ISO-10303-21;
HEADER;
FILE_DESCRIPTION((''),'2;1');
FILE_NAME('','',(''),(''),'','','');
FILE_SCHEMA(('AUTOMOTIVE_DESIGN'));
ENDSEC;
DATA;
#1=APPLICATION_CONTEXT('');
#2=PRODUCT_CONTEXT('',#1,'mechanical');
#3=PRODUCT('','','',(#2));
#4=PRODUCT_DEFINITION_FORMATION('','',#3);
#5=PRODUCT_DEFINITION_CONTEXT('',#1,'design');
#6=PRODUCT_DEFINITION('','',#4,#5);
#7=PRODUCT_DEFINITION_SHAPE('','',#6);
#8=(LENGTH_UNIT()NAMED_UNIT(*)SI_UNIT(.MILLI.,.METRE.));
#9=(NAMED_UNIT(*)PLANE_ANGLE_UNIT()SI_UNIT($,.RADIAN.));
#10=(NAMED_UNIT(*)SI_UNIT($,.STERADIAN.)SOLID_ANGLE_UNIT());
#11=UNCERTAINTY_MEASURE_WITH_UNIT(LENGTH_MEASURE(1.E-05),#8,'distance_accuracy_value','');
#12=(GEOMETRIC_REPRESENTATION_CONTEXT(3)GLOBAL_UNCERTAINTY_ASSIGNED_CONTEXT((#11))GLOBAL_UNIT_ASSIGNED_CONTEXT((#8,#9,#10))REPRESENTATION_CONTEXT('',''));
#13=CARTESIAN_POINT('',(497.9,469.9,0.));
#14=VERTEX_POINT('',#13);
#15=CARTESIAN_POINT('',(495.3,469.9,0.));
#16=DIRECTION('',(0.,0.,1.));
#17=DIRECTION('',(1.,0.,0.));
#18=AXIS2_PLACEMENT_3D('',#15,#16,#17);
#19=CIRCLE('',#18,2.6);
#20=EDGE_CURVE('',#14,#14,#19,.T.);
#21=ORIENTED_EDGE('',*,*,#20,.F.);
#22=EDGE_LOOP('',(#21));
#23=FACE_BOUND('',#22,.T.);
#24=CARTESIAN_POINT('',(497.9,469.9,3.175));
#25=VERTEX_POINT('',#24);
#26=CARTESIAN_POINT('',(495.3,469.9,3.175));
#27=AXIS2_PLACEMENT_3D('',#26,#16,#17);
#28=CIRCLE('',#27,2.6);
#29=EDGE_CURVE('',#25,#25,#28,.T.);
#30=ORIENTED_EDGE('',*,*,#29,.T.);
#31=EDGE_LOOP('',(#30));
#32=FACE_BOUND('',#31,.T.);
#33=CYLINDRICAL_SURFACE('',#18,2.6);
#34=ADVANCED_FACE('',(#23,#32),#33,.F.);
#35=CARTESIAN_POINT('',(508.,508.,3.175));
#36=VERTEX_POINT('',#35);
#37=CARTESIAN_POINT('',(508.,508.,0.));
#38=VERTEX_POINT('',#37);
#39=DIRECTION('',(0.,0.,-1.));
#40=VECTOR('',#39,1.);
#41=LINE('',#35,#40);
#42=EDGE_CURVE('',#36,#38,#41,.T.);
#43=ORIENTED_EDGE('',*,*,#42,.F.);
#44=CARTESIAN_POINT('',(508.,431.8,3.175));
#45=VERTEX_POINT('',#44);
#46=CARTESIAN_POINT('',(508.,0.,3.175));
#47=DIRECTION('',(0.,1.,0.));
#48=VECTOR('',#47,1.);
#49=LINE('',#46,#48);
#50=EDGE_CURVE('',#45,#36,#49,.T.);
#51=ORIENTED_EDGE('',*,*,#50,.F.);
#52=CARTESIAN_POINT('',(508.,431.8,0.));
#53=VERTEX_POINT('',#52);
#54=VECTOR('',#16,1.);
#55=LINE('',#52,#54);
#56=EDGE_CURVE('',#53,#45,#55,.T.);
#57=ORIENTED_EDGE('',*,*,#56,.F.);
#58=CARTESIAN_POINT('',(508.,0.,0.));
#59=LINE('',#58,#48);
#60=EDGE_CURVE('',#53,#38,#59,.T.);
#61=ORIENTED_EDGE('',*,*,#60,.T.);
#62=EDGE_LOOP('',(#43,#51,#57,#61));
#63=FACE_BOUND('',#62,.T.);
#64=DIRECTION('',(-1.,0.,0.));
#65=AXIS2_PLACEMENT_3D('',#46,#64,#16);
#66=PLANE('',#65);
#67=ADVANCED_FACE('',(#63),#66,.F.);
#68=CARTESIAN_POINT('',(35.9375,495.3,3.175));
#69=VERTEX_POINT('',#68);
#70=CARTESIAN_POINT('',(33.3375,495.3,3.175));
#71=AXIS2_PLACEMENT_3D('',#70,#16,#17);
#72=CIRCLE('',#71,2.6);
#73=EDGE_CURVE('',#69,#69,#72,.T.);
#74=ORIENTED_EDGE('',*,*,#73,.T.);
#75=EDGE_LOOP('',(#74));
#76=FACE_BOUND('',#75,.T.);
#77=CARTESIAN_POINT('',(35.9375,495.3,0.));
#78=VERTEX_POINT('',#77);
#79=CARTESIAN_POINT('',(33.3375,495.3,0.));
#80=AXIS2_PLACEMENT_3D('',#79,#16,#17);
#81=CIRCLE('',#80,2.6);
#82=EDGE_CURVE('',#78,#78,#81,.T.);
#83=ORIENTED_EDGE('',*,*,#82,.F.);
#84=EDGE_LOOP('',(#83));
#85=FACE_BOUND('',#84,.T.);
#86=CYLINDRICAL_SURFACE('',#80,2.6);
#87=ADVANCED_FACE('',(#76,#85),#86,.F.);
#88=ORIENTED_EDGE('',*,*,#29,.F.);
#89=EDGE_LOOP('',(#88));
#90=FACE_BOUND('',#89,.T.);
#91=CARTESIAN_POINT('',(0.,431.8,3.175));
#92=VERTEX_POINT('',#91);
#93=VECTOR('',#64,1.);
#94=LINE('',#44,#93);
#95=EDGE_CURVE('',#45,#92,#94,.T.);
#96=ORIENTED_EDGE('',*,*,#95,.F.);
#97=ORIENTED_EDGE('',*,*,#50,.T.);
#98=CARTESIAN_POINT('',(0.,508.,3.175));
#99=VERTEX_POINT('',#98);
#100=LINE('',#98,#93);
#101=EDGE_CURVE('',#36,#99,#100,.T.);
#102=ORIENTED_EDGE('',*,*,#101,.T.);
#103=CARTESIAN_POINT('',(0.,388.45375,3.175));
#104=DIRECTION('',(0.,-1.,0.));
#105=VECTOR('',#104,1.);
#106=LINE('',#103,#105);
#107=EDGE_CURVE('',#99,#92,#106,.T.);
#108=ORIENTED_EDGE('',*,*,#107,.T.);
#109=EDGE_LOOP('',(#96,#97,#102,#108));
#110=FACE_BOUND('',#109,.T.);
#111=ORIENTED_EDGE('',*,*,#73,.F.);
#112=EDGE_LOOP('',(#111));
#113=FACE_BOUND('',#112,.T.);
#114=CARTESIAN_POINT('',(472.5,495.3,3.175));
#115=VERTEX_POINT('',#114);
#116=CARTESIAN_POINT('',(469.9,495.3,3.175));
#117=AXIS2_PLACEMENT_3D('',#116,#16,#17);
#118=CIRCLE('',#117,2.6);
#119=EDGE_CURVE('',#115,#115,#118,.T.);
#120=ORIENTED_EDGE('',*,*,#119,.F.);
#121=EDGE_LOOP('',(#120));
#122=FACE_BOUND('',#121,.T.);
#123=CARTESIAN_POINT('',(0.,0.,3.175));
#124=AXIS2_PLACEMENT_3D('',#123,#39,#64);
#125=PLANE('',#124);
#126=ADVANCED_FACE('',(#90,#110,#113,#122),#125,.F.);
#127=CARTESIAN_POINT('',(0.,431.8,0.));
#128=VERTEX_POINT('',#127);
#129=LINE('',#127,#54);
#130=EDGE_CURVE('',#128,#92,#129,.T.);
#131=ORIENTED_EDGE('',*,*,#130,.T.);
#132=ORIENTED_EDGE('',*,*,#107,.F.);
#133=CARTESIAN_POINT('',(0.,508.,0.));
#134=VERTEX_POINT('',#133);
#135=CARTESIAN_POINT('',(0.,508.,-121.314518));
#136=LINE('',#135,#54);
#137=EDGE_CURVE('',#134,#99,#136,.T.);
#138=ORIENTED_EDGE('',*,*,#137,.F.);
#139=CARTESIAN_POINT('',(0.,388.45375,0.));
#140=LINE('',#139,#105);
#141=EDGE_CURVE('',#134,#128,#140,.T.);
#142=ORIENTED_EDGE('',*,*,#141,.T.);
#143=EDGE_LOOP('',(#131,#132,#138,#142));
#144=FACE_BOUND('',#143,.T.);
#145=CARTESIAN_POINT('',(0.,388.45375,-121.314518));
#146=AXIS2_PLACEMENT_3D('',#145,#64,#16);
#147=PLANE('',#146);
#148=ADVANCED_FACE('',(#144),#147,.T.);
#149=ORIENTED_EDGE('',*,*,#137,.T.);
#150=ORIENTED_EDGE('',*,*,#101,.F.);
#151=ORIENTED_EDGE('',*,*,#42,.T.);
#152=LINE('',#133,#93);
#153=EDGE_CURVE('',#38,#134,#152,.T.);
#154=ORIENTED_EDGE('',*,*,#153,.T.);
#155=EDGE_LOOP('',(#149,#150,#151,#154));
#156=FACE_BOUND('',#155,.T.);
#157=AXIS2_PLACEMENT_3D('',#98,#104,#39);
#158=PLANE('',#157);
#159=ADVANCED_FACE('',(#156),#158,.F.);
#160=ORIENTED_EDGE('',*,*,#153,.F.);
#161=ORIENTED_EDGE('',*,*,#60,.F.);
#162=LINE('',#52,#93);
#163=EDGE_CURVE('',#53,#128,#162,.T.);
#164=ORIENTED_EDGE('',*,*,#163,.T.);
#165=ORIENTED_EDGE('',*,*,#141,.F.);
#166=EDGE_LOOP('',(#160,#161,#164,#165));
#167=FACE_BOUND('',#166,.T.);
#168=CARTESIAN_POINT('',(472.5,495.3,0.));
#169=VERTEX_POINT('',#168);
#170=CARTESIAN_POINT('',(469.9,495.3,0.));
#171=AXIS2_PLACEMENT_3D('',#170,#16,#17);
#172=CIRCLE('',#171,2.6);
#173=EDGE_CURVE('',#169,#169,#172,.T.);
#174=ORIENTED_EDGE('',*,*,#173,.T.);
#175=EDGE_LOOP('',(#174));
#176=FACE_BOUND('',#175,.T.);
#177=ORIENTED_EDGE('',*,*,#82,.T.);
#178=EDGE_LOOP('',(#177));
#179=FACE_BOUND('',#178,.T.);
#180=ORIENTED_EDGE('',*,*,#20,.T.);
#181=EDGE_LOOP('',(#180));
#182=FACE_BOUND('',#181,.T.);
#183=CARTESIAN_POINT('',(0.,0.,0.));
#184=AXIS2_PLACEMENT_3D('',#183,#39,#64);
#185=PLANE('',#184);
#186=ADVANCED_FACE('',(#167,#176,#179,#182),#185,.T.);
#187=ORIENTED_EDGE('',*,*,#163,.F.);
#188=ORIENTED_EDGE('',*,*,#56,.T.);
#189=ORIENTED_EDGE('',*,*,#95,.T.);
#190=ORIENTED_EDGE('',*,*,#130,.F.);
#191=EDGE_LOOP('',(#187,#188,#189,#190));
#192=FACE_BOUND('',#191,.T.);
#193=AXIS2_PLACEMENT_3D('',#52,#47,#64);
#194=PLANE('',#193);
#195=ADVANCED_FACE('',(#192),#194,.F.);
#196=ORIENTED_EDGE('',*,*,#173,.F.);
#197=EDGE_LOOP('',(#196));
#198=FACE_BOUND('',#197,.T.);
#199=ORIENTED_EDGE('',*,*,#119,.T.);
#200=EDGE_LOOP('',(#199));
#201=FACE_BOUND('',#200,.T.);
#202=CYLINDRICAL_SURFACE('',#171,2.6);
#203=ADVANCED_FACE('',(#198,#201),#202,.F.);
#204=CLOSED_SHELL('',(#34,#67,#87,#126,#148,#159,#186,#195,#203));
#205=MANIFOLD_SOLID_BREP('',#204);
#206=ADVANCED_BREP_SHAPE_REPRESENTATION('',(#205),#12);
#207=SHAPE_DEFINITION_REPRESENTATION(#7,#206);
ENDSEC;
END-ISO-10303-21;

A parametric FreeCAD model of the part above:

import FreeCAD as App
import Part
import Sketcher
from FreeCAD import Vector
Q = App.Units.Quantity


def add_polygon(sketch, points):
    """Adds a closed chain of lines whose ends are joined by coincident constraints."""
    first, n = sketch.GeometryCount, len(points)
    for a, b in zip(points, points[1:] + points[:1]):
        sketch.addGeometry(Part.LineSegment(App.Vector(*a, 0), App.Vector(*b, 0)), False)
    for i in range(n):
        sketch.addConstraint(Sketcher.Constraint("Coincident", first + i, 2, first + (i + 1) % n, 1))

doc = App.newDocument("Part")
body = doc.addObject("PartDesign::Body", "Body")

sketch1 = doc.addObject("Sketcher::SketchObject", "Sketch")
body.addObject(sketch1)
sketch1.AttachmentSupport = (doc.XY_Plane, [""])
sketch1.MapMode = "FlatFace"
add_polygon(sketch1, [(0, 508), (0, 0), (508, 0), (508, 508)])
sketch1.addConstraint([
    Sketcher.Constraint("Vertical", 0),
    Sketcher.Constraint("Horizontal", 1),
    Sketcher.Constraint("Vertical", 2),
    Sketcher.Constraint("Horizontal", 3),
    Sketcher.Constraint("Coincident", 0, 2, -1, 1),
    Sketcher.Constraint("Equal", 3, 0),
    Sketcher.Constraint("DistanceX", 1, 1, 1, 2, Q("20 in")),
])
pad1 = doc.addObject("PartDesign::Pad", "Pad")
body.addObject(pad1)
pad1.Profile = sketch1
pad1.Length = Q("0.125 in")

sketch2 = doc.addObject("Sketcher::SketchObject", "Sketch001")
body.addObject(sketch2)
sketch2.AttachmentSupport = (doc.XY_Plane, [""])
sketch2.MapMode = "FlatFace"
sketch2.addGeometry(Part.Circle(Vector(339.7, 45.1, 0), Vector(0, 0, 1), 2.5), False)
sketch2.addGeometry(Part.Circle(Vector(85.7, 45.1, 0), Vector(0, 0, 1), 2.5), False)
sketch2.addGeometry(Part.Circle(Vector(339.7, 75.6, 0), Vector(0, 0, 1), 2.5), False)
sketch2.addGeometry(Part.Circle(Vector(85.7, 75.6, 0), Vector(0, 0, 1), 2.5), False)
add_polygon(sketch2, [(330.2, 368.3), (330.2, 0), (95.2, 0), (95.2, 368.3)])
add_polygon(sketch2, [(0, 328.5), (0, 508), (20.6, 508), (20.6, 328.5)])
sketch2.addConstraint([
    Sketcher.Constraint("Vertical", 4),
    Sketcher.Constraint("Horizontal", 5),
    Sketcher.Constraint("Vertical", 6),
    Sketcher.Constraint("Horizontal", 7),
    Sketcher.Constraint("Vertical", 8),
    Sketcher.Constraint("Horizontal", 9),
    Sketcher.Constraint("Vertical", 10),
    Sketcher.Constraint("Horizontal", 11),
    Sketcher.Constraint("Equal", 0, 1),
    Sketcher.Constraint("Equal", 1, 2),
    Sketcher.Constraint("Equal", 2, 3),
    Sketcher.Constraint("PointOnObject", 4, 2, -1),
    Sketcher.Constraint("PointOnObject", 8, 2, -2),
    Sketcher.Constraint("Horizontal", 0, 3, 1, 3),
    Sketcher.Constraint("Horizontal", 2, 3, 3, 3),
    Sketcher.Constraint("Vertical", 0, 3, 2, 3),
    Sketcher.Constraint("Vertical", 1, 3, 3, 3),
    Sketcher.Constraint("Diameter", 0, Q("0.2 in")),
    Sketcher.Constraint("DistanceY", 4, 2, 4, 1, Q("14.5 in")),
    Sketcher.Constraint("DistanceX", -1, 1, 4, 2, Q("13 in")),
    Sketcher.Constraint("DistanceY", -1, 1, 8, 2, Q("20 in")),
    Sketcher.Constraint("DistanceX", 1, 3, 0, 3, Q("10 in")),
    Sketcher.Constraint("DistanceX", 5, 2, 5, 1, Q("9.25 in")),
    Sketcher.Constraint("DistanceY", 0, 3, 2, 3, Q("1.2 in")),
    Sketcher.Constraint("DistanceX", 9, 1, 9, 2, Q("0.8125 in")),
    Sketcher.Constraint("DistanceX", -1, 1, 0, 3, Q("13.375 in")),
    Sketcher.Constraint("DistanceY", -1, 1, 0, 3, Q("1.775 in")),
    Sketcher.Constraint("DistanceY", 1, 3, 10, 2, Q("11.15625 in")),
])
pocket1 = doc.addObject("PartDesign::Pocket", "Pocket")
body.addObject(pocket1)
pocket1.Profile = sketch2
pocket1.Length = Q("1.75 in")
pocket1.Reversed = True

sketch3 = doc.addObject("Sketcher::SketchObject", "Sketch002")
body.addObject(sketch3)
sketch3.AttachmentSupport = (doc.XY_Plane, [""])
sketch3.MapMode = "FlatFace"
sketch3.addGeometry([
    Part.Circle(Vector(311.2, 390.8, 0), Vector(0, 0, 1), 2.2),
    Part.Circle(Vector(277.1, 390.8, 0), Vector(0, 0, 1), 2.2),
    Part.Circle(Vector(148.4, 390.8, 0), Vector(0, 0, 1), 2.2),
    Part.Circle(Vector(114.3, 390.8, 0), Vector(0, 0, 1), 2.2),
], False)
sketch3.addConstraint([
    Sketcher.Constraint("Equal", 0, 1),
    Sketcher.Constraint("Equal", 1, 2),
    Sketcher.Constraint("Equal", 2, 3),
    Sketcher.Constraint("Horizontal", 0, 3, 1, 3),
    Sketcher.Constraint("Horizontal", 1, 3, 2, 3),
    Sketcher.Constraint("Horizontal", 2, 3, 3, 3),
    Sketcher.Constraint("Diameter", 0, Q("0.17 in")),
    Sketcher.Constraint("DistanceX", 1, 3, 0, 3, Q("1.34 in")),
    Sketcher.Constraint("DistanceX", 2, 3, 1, 3, Q("5.07 in")),
    Sketcher.Constraint("DistanceX", 3, 3, 2, 3, Q("1.34 in")),
    Sketcher.Constraint("DistanceX", -1, 1, 0, 3, Q("12.251 in")),
    Sketcher.Constraint("DistanceY", -1, 1, 0, 3, Q("15.385 in")),
])
pocket2 = doc.addObject("PartDesign::Pocket", "Pocket001")
body.addObject(pocket2)
pocket2.Profile = sketch3
pocket2.Type = "ThroughAll"
pocket2.Reversed = True

sketch4 = doc.addObject("Sketcher::SketchObject", "Sketch003")
body.addObject(sketch4)
sketch4.AttachmentSupport = (doc.XY_Plane, [""])
sketch4.MapMode = "FlatFace"
sketch4.AttachmentOffset = App.Placement(Vector(0, 0, 0.125 * 25.4), App.Rotation())
sketch4.addGeometry([
    Part.Circle(Vector(12.7, 303.1, 0), Vector(0, 0, 1), 2.6),
    Part.Circle(Vector(12.7, 177.8, 0), Vector(0, 0, 1), 2.6),
    Part.Circle(Vector(12.7, 38.1, 0), Vector(0, 0, 1), 2.6),
    Part.Circle(Vector(495.3, 38.1, 0), Vector(0, 0, 1), 2.6),
    Part.Circle(Vector(495.3, 177.8, 0), Vector(0, 0, 1), 2.6),
    Part.Circle(Vector(495.3, 303.1, 0), Vector(0, 0, 1), 2.6),
    Part.Circle(Vector(495.3, 469.9, 0), Vector(0, 0, 1), 2.6),
    Part.Circle(Vector(57.1, 12.7, 0), Vector(0, 0, 1), 2.6),
    Part.Circle(Vector(368.3, 12.7, 0), Vector(0, 0, 1), 2.6),
    Part.Circle(Vector(444.5, 12.7, 0), Vector(0, 0, 1), 2.6),
    Part.Circle(Vector(33.3, 495.3, 0), Vector(0, 0, 1), 2.6),
    Part.Circle(Vector(469.9, 495.3, 0), Vector(0, 0, 1), 2.6),
], False)
sketch4.addConstraint([
    Sketcher.Constraint("Equal", 0, 1),
    Sketcher.Constraint("Equal", 1, 2),
    Sketcher.Constraint("Equal", 2, 3),
    Sketcher.Constraint("Equal", 3, 4),
    Sketcher.Constraint("Equal", 4, 5),
    Sketcher.Constraint("Equal", 5, 6),
    Sketcher.Constraint("Equal", 6, 7),
    Sketcher.Constraint("Equal", 7, 8),
    Sketcher.Constraint("Equal", 8, 9),
    Sketcher.Constraint("Equal", 9, 10),
    Sketcher.Constraint("Equal", 10, 11),
    Sketcher.Constraint("Horizontal", 2, 3, 3, 3),
    Sketcher.Constraint("Horizontal", 1, 3, 4, 3),
    Sketcher.Constraint("Horizontal", 0, 3, 5, 3),
    Sketcher.Constraint("Horizontal", 7, 3, 8, 3),
    Sketcher.Constraint("Horizontal", 8, 3, 9, 3),
    Sketcher.Constraint("Horizontal", 10, 3, 11, 3),
    Sketcher.Constraint("Vertical", 0, 3, 1, 3),
    Sketcher.Constraint("Vertical", 1, 3, 2, 3),
    Sketcher.Constraint("Vertical", 3, 3, 4, 3),
    Sketcher.Constraint("Vertical", 4, 3, 5, 3),
    Sketcher.Constraint("Vertical", 5, 3, 6, 3),
    Sketcher.Constraint("DistanceY", -1, 1, 1, 3, Q("7 in")),
    Sketcher.Constraint("DistanceX", 2, 3, 3, 3, Q("19 in")),
    Sketcher.Constraint("DistanceY", 3, 3, 6, 3, Q("17 in")),
    Sketcher.Constraint("DistanceY", 7, 3, 2, 3, Q("1 in")),
    Sketcher.Constraint("DistanceX", 8, 3, 3, 3, Q("5 in")),
    Sketcher.Constraint("DistanceX", 9, 3, 3, 3, Q("2 in")),
    Sketcher.Constraint("DistanceY", 2, 3, 10, 3, Q("18 in")),
    Sketcher.Constraint("DistanceX", 11, 3, 6, 3, Q("1 in")),
    Sketcher.Constraint("DistanceX", -1, 1, 0, 3, Q("0.5 in")),
    Sketcher.Constraint("DistanceY", -1, 1, 2, 3, Q("1.5 in")),
    Sketcher.Constraint("Diameter", 0, 5.2),
    Sketcher.Constraint("DistanceX", -1, 1, 7, 3, Q("2.25 in")),
    Sketcher.Constraint("DistanceX", -1, 1, 10, 3, Q("1.3125 in")),
    Sketcher.Constraint("DistanceY", -1, 1, 0, 3, 303.05375),
])
pocket3 = doc.addObject("PartDesign::Pocket", "Pocket002")
body.addObject(pocket3)
pocket3.Profile = sketch4
pocket3.Type = "ThroughAll"

sketch5 = doc.addObject("Sketcher::SketchObject", "Sketch004")
body.addObject(sketch5)
sketch5.AttachmentSupport = (doc.XY_Plane, [""])
sketch5.MapMode = "FlatFace"
sketch5.AttachmentOffset = App.Placement(Vector(0, 0, 0.125 * 25.4), App.Rotation())
add_polygon(sketch5, [(0, 508), (0, 388), (21, 388), (21, 508)])
sketch5.addConstraint([
    Sketcher.Constraint("Vertical", 0),
    Sketcher.Constraint("Horizontal", 1),
    Sketcher.Constraint("Vertical", 2),
    Sketcher.Constraint("Horizontal", 3),
    Sketcher.Constraint("PointOnObject", 0, 2, -2),
    Sketcher.Constraint("DistanceY", -1, 1, 2, 2, Q("20 in")),
    Sketcher.Constraint("DistanceX", 1, 1, 1, 2, Q("0.8125 in")),
    Sketcher.Constraint("DistanceY", 0, 2, 0, 1, 119.54625),
])
pad2 = doc.addObject("PartDesign::Pad", "Pad001")
body.addObject(pad2)
pad2.Profile = sketch5
pad2.Length = Q("0.125 in")
pad2.Reversed = True

sketch6 = doc.addObject("Sketcher::SketchObject", "Sketch005")
body.addObject(sketch6)
sketch6.AttachmentSupport = (doc.XY_Plane, [""])
sketch6.MapMode = "FlatFace"
sketch6.AttachmentOffset = App.Placement(Vector(0, 0, 0.125 * 25.4), App.Rotation())
add_polygon(sketch6, [(0, 432), (0, 0), (508, 0), (508, 432)])
sketch6.addConstraint([
    Sketcher.Constraint("Vertical", 0),
    Sketcher.Constraint("Horizontal", 1),
    Sketcher.Constraint("Vertical", 2),
    Sketcher.Constraint("Horizontal", 3),
    Sketcher.Constraint("Coincident", 0, 2, -1, 1),
    Sketcher.Constraint("DistanceX", 1, 1, 1, 2, Q("20 in")),
    Sketcher.Constraint("DistanceY", 0, 2, 0, 1, Q("17 in")),
])
pocket4 = doc.addObject("PartDesign::Pocket", "Pocket003")
body.addObject(pocket4)
pocket4.Profile = sketch6
pocket4.Type = "ThroughAll"

doc.recompute()
